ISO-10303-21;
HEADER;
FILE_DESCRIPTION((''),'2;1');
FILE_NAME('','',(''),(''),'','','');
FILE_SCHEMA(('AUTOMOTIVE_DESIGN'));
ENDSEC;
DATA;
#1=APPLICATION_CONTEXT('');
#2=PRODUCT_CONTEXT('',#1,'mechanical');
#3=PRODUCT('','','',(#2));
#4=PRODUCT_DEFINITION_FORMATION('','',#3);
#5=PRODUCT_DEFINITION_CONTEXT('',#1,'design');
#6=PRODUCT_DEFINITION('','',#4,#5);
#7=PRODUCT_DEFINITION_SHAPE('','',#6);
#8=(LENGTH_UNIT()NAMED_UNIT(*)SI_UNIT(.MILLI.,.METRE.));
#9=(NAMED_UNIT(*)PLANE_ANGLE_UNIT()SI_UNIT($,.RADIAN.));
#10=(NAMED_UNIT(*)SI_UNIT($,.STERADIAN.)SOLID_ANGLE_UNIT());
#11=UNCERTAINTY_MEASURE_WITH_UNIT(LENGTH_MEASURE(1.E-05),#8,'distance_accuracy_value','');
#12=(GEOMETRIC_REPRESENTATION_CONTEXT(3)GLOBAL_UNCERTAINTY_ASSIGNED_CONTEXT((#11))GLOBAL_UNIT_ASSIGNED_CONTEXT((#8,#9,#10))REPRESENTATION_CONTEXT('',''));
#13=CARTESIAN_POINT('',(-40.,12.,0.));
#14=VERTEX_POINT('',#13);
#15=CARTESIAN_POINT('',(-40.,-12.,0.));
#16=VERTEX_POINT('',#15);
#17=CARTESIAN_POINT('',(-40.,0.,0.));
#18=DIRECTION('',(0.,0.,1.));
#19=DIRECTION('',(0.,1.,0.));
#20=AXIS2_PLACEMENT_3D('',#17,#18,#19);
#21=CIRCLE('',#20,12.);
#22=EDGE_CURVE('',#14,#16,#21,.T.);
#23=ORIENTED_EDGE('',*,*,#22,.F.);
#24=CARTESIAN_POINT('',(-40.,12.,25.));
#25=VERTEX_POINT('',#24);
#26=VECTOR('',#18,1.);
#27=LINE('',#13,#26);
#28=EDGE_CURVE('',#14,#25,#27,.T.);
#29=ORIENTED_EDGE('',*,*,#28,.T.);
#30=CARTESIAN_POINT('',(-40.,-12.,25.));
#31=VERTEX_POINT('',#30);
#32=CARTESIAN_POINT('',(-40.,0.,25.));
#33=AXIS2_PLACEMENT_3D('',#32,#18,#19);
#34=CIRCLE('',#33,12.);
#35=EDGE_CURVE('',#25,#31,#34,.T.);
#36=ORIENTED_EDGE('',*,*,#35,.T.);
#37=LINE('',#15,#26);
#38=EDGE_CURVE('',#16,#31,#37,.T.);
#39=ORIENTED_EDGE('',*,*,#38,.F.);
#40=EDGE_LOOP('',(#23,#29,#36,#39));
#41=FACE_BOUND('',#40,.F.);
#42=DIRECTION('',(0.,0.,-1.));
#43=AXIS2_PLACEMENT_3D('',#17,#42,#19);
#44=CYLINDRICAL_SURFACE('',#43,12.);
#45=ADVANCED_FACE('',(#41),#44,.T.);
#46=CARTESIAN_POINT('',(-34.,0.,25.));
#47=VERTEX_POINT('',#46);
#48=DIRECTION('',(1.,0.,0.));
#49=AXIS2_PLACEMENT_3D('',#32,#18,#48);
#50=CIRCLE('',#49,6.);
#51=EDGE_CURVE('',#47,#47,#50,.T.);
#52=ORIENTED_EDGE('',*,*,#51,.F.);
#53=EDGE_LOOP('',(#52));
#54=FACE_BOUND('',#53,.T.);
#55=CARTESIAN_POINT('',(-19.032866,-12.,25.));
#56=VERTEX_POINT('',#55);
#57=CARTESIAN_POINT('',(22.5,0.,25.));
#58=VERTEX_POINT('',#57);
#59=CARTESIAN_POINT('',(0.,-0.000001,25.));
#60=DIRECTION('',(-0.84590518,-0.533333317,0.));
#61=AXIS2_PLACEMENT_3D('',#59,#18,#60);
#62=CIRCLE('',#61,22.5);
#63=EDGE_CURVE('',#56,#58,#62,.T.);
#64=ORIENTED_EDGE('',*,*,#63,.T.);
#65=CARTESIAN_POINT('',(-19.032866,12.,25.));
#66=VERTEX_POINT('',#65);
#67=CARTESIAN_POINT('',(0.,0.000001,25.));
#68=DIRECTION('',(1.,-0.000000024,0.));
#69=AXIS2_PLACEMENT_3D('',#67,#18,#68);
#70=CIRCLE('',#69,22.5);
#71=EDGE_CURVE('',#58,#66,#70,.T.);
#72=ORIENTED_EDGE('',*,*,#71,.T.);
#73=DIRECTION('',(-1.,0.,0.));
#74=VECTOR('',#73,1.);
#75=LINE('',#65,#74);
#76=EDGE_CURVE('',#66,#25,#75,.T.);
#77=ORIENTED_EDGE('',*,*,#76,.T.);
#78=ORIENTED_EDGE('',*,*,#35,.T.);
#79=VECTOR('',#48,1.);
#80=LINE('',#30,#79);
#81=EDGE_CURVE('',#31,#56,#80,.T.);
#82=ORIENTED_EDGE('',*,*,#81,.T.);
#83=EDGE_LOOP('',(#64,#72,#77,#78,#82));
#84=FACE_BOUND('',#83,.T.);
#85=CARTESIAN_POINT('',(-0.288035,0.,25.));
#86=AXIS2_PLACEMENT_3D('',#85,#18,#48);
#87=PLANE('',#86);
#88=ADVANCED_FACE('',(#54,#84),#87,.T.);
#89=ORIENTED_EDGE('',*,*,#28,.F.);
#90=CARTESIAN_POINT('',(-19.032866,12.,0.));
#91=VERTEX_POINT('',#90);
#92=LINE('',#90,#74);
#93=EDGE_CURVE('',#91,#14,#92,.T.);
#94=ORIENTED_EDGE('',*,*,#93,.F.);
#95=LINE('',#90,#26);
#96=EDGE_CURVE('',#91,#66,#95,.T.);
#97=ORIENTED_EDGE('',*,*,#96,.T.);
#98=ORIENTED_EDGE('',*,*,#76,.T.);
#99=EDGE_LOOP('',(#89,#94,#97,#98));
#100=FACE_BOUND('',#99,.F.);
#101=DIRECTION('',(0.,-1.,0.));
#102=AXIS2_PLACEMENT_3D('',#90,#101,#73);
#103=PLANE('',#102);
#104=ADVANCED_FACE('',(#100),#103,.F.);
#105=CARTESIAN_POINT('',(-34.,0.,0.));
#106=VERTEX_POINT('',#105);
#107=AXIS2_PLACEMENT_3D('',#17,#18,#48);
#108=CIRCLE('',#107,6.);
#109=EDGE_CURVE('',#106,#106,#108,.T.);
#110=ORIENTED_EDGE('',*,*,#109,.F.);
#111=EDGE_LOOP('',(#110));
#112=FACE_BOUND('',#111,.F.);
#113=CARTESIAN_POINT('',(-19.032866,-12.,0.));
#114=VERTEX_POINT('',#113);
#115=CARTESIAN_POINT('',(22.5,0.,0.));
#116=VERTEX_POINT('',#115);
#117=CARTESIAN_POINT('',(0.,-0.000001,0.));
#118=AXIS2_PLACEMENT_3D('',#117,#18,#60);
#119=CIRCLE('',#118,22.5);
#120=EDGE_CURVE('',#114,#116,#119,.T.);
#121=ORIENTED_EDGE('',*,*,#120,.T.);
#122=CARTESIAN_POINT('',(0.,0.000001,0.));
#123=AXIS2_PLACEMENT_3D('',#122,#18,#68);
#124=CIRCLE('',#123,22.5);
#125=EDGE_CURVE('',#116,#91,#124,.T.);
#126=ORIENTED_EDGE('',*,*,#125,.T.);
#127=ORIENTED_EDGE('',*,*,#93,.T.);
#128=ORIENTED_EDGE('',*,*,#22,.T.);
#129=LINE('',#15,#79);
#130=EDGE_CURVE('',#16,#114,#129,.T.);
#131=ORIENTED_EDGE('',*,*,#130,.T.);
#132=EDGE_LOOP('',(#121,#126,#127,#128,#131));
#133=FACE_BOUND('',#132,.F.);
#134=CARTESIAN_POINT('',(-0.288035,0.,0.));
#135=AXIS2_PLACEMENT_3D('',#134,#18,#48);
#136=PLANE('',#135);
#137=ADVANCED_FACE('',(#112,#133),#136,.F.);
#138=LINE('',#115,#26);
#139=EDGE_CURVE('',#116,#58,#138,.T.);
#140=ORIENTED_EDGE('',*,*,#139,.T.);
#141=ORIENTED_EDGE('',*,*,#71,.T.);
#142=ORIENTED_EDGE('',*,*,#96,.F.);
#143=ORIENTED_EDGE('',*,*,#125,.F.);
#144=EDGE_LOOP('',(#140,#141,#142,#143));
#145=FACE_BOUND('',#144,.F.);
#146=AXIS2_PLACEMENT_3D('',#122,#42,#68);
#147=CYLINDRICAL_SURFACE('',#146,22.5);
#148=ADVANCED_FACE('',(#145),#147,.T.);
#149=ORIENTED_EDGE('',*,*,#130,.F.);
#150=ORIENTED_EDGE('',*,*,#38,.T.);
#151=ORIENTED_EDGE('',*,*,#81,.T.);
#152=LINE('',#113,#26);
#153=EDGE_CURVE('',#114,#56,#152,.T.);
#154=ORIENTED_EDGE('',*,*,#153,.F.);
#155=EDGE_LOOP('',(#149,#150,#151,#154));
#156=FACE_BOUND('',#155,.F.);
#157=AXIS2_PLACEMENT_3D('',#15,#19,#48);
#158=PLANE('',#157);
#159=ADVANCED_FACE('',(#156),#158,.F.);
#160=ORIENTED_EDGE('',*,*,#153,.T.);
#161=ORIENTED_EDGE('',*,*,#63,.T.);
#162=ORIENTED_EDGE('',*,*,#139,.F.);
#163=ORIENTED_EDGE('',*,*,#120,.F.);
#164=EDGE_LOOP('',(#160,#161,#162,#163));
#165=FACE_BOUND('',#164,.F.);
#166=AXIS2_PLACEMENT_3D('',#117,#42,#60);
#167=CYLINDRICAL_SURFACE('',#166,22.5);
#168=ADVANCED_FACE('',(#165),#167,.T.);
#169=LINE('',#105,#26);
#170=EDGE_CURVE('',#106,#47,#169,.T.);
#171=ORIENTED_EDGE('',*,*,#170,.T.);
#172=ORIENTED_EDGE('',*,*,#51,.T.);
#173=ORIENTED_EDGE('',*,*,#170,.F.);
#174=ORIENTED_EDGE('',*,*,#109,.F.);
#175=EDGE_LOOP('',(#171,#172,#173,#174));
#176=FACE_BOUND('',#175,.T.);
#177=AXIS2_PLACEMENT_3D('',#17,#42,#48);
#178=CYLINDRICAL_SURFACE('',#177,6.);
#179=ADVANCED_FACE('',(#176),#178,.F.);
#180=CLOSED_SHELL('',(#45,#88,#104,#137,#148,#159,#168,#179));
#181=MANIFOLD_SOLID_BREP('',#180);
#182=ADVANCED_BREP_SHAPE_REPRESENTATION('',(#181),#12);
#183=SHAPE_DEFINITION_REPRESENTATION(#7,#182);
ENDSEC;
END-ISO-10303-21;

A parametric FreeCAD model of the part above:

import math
import FreeCAD as App
import Part
import Sketcher
from FreeCAD import Vector
Q = App.Units.Quantity

doc = App.newDocument("Part")
params = doc.addObject("Spreadsheet::Sheet", "Params")
for row, (alias, value) in enumerate([
    ("sketch1_diameter", "12 mm"),
    ("sketch1_radius", "12 mm"),
    ("sketch1_radius2", "22.5 mm"),
    ("pad1_length", "25 mm"),
], start=1):
    params.set(f"A{row}", alias)
    params.set(f"B{row}", "=" + value)
    params.setAlias(f"B{row}", alias)

body = doc.addObject("PartDesign::Body", "Body")

sketch1 = body.newObject("Sketcher::SketchObject", "Sketch")
sketch1.AttachmentSupport = (doc.getObject("XY_Plane"), [""])
sketch1.MapMode = "FlatFace"
sketch1.addGeometry(Part.ArcOfCircle(Part.Circle(Vector(0, 0, 0), Vector(0, 0, 1), 22), math.radians(-148), math.radians(0)), False)
sketch1.addGeometry(Part.ArcOfCircle(Part.Circle(Vector(0, 0, 0), Vector(0, 0, 1), 22), math.radians(0), math.radians(148)), False)
sketch1.addGeometry(Part.LineSegment(Vector(-19, 12, 0), Vector(-40, 12, 0)), False)
sketch1.addGeometry(Part.ArcOfCircle(Part.Circle(Vector(-40, 0, 0), Vector(0, 0, 1), 12), math.radians(90), math.radians(270)), False)
sketch1.addGeometry(Part.LineSegment(Vector(-40, -12, 0), Vector(-19, -12, 0)), False)
sketch1.addGeometry(Part.Circle(Vector(-40, 0, 0), Vector(0, 0, 1), 6), False)
sketch1.addConstraint(Sketcher.Constraint("Tangent", 0, 2, 1, 1))
sketch1.addConstraint(Sketcher.Constraint("Coincident", 1, 2, 2, 1))
sketch1.addConstraint(Sketcher.Constraint("Tangent", 2, 2, 3, 1))
sketch1.addConstraint(Sketcher.Constraint("Tangent", 3, 2, 4, 1))
sketch1.addConstraint(Sketcher.Constraint("Coincident", 4, 2, 0, 1))
sketch1.addConstraint(Sketcher.Constraint("Horizontal", 2))
sketch1.addConstraint(Sketcher.Constraint("Horizontal", 4))
sketch1.addConstraint(Sketcher.Constraint("Coincident", 0, 3, -1, 1))
sketch1.addConstraint(Sketcher.Constraint("Coincident", 5, 3, 3, 3))
sketch1.addConstraint(Sketcher.Constraint("Equal", 0, 1))
sketch1.addConstraint(Sketcher.Constraint("PointOnObject", 3, 3, -1))
sketch1.addConstraint(Sketcher.Constraint("PointOnObject", 0, 2, -1))
sketch1.addConstraint(Sketcher.Constraint("Diameter", 5, Q("12 mm")))
sketch1.addConstraint(Sketcher.Constraint("Radius", 3, Q("12 mm")))
sketch1.addConstraint(Sketcher.Constraint("Radius", 0, Q("22.5 mm")))
sketch1.addConstraint(Sketcher.Constraint("DistanceX", 3, 3, -1, 1, Q("40 mm")))
sketch1.setExpression("Constraints[12]", "Params.sketch1_diameter")
sketch1.setExpression("Constraints[13]", "Params.sketch1_radius")
sketch1.setExpression("Constraints[14]", "Params.sketch1_radius2")
pad1 = body.newObject("PartDesign::Pad", "Pad")
pad1.Profile = sketch1
pad1.setExpression("Length", "Params.pad1_length")

doc.recompute()
